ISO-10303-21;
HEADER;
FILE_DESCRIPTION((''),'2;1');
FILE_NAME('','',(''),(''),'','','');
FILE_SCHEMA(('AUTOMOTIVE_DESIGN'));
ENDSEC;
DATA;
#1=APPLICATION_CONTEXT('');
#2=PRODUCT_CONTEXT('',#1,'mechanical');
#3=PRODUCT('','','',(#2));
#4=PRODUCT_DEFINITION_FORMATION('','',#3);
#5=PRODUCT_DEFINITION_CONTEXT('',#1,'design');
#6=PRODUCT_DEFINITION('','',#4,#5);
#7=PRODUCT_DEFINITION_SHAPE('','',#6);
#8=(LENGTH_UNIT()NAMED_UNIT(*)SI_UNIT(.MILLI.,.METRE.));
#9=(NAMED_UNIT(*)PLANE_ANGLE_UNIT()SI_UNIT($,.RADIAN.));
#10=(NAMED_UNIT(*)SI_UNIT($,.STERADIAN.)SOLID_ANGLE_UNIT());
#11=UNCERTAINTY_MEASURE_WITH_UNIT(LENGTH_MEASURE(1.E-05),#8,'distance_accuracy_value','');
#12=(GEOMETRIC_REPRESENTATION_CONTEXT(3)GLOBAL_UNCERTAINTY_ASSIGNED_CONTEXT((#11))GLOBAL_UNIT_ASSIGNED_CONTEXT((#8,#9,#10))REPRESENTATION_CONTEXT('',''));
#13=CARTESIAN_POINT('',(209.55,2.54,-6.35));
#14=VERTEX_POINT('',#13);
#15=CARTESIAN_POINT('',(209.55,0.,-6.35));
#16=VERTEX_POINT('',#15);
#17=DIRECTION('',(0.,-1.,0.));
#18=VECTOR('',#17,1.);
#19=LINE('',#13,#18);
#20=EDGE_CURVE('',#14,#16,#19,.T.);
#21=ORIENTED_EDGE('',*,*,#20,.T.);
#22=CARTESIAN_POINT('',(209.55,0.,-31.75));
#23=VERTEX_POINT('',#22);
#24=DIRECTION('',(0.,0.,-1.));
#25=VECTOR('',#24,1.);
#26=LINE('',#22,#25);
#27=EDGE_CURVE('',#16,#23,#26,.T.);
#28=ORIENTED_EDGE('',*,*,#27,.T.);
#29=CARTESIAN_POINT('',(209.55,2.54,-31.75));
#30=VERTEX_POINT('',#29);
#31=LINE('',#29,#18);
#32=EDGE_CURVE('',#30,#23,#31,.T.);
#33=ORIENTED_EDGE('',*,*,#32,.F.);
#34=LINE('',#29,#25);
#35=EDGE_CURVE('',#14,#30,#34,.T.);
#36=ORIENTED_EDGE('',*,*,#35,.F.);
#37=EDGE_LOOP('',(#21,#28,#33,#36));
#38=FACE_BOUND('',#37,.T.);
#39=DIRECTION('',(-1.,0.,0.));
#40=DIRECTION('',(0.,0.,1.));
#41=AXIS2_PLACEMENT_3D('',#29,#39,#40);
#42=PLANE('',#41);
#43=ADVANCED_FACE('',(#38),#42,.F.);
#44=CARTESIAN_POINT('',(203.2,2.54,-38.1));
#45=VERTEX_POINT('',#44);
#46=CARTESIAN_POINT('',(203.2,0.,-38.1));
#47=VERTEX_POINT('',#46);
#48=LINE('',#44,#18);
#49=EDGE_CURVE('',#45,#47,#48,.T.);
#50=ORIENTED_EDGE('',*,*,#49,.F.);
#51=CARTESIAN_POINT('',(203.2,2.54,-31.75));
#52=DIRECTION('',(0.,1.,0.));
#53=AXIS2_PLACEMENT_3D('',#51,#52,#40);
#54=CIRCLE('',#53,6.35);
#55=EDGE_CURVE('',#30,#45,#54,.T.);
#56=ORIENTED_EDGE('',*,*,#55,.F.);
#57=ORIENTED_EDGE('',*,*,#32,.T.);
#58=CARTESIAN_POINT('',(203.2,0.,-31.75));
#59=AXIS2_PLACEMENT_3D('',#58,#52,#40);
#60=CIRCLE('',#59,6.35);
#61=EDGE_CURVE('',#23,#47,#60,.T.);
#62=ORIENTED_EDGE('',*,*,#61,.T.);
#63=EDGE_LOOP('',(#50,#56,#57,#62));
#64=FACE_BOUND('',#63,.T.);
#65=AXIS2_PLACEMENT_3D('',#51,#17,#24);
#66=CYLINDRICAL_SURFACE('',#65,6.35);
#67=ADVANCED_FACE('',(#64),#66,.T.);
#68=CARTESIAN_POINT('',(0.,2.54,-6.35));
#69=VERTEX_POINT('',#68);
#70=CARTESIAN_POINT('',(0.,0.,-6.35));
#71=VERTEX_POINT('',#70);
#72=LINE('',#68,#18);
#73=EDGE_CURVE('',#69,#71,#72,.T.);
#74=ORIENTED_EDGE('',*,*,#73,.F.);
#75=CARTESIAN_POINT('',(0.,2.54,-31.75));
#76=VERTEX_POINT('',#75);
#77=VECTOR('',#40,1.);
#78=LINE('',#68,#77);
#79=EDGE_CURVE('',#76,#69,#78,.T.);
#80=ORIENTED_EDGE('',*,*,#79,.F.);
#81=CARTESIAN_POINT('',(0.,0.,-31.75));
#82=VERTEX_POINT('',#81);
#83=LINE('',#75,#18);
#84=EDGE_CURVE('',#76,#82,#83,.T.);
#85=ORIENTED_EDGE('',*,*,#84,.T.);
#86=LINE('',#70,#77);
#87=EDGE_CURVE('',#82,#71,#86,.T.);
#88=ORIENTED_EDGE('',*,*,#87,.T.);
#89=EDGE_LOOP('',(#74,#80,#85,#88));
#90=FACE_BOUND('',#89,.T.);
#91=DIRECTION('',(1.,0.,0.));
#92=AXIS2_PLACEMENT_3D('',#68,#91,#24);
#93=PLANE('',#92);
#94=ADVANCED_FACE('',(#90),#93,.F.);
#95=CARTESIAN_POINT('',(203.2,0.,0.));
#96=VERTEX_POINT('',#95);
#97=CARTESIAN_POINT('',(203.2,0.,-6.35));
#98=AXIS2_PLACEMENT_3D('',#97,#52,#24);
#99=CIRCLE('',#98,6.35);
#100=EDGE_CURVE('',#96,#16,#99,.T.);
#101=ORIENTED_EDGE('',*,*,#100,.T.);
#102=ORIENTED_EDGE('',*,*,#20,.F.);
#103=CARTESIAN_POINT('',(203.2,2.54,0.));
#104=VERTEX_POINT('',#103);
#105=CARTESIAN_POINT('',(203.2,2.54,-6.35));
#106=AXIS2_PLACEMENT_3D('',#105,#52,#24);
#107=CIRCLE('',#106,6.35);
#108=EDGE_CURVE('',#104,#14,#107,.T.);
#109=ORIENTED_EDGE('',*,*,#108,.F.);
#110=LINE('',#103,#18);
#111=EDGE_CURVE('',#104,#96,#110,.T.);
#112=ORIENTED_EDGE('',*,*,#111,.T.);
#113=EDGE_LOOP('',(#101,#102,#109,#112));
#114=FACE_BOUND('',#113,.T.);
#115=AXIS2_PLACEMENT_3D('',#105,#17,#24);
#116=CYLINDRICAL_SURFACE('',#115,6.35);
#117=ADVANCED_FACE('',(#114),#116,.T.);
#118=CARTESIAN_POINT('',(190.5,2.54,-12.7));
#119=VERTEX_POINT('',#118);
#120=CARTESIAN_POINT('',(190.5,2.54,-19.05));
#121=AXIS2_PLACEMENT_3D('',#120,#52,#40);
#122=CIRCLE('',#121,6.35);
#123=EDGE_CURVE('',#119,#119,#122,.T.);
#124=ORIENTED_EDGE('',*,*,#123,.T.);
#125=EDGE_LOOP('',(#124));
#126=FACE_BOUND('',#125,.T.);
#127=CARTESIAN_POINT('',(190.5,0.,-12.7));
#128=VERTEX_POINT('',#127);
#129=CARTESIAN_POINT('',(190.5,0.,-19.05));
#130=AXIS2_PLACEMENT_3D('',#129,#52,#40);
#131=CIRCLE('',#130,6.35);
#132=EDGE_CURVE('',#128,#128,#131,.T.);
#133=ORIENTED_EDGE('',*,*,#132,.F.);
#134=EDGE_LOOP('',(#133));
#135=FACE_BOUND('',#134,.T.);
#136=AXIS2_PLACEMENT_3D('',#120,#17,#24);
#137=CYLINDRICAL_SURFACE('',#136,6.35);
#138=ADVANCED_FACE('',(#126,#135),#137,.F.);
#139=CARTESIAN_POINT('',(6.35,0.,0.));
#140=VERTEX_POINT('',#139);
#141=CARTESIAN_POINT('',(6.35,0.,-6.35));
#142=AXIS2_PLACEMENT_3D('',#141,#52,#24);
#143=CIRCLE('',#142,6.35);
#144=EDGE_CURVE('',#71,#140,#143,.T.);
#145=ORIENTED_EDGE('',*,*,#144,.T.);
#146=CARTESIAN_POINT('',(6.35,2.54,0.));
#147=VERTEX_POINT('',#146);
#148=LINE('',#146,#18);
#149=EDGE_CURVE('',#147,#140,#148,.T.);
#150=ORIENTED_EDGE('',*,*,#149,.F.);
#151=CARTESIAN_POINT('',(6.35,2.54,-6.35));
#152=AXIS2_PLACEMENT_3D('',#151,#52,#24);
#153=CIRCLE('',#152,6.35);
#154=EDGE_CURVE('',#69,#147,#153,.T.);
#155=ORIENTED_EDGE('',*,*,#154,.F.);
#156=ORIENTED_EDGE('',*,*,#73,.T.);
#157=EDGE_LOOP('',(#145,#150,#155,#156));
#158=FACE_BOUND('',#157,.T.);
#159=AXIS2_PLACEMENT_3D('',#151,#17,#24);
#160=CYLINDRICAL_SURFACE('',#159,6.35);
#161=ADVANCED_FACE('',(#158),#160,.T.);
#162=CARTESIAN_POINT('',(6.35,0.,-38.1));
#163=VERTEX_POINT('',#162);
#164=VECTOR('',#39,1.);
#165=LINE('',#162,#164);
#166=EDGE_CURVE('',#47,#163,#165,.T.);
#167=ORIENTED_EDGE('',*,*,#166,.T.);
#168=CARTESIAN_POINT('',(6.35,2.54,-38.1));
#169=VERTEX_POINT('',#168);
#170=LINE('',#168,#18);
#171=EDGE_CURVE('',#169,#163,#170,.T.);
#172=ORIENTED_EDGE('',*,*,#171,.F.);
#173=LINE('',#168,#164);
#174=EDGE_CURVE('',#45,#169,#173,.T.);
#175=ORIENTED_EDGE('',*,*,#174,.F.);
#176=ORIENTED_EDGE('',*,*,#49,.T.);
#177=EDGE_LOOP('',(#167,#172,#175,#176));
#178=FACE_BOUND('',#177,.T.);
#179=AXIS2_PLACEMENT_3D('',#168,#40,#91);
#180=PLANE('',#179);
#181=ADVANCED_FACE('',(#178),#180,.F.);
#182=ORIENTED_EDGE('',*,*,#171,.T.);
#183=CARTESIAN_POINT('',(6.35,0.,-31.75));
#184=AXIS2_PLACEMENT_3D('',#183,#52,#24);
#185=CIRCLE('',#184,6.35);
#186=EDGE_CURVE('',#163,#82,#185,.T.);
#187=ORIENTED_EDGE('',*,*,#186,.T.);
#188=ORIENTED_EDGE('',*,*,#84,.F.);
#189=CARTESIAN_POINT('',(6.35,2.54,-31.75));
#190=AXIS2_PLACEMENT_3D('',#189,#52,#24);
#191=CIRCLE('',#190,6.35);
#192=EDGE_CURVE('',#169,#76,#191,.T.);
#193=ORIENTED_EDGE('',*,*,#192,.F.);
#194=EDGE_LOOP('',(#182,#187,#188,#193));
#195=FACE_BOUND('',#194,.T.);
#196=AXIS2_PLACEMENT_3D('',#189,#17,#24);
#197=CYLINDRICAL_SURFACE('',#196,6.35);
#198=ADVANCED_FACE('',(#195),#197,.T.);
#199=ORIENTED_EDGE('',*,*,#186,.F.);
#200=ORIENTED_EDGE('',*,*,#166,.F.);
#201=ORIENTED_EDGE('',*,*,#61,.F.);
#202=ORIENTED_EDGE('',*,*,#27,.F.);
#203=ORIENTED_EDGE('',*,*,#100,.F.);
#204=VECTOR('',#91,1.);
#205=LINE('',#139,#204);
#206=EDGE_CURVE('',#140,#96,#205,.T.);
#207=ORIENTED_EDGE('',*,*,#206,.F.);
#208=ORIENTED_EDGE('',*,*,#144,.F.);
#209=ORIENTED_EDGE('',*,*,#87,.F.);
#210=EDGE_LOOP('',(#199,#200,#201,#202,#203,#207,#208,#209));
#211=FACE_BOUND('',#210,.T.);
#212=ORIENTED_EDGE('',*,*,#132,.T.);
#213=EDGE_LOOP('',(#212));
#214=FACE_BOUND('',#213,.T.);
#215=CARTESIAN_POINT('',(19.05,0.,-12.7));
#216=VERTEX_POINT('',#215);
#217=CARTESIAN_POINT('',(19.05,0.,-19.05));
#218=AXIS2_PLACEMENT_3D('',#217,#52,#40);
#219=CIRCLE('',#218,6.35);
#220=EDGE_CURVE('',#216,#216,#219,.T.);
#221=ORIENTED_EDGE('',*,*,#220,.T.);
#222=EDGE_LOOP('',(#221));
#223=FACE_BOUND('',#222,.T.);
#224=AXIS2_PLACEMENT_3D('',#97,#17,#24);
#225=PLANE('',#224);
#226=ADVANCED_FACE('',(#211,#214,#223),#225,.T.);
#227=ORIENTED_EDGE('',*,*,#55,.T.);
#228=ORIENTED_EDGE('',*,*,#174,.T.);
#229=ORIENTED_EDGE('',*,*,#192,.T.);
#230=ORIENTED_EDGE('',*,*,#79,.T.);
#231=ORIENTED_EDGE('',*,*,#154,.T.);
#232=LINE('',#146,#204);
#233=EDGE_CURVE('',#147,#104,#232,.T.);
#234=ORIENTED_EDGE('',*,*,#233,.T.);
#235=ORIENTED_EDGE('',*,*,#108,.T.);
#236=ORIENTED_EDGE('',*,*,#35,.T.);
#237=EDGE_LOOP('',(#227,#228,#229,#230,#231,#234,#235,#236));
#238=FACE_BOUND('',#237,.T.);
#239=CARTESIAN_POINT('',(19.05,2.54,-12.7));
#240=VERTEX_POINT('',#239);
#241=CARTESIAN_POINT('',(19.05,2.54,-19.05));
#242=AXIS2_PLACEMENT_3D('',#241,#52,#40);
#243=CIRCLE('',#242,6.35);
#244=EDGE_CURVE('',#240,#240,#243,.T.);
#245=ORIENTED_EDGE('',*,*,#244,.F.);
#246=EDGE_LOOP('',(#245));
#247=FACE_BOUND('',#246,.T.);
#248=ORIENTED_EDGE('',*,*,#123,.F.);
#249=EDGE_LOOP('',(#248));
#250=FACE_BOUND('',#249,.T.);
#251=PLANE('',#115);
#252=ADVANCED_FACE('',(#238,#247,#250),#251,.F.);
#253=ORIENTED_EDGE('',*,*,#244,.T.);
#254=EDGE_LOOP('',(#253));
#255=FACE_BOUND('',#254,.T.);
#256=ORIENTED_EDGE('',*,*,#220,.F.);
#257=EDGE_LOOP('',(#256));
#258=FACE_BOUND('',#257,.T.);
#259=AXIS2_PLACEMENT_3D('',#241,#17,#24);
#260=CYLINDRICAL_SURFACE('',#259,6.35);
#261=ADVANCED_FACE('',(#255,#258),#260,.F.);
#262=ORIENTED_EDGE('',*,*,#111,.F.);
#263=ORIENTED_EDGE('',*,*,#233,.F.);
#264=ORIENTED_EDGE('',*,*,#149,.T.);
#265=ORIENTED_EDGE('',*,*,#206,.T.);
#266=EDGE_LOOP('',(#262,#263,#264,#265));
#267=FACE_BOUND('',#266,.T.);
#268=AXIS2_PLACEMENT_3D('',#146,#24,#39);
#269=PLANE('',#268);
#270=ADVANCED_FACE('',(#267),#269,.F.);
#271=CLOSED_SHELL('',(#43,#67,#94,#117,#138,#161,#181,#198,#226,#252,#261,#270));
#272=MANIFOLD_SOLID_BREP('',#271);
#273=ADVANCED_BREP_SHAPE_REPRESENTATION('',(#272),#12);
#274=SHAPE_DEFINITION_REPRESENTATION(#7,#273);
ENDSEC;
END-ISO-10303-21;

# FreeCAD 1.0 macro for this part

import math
import FreeCAD as App
import Part
import Sketcher
Q = App.Units.Quantity

doc = App.newDocument("Part")
params = doc.addObject("Spreadsheet::Sheet", "Params")
for row, (alias, value) in enumerate([
    ("sketch1_diameter", "0.5 in"),
    ("sketch1_height", "1 in"),
    ("pad1_length", "0.1 in"),
], start=1):
    params.set(f"A{row}", alias)
    params.set(f"B{row}", "=" + value)
    params.setAlias(f"B{row}", alias)

body = doc.addObject("PartDesign::Body", "Body")

sketch1 = body.newObject("Sketcher::SketchObject", "Sketch")
sketch1.AttachmentSupport = (doc.getObject("XZ_Plane"), [""])
sketch1.MapMode = "FlatFace"
sketch1.addGeometry([
    Part.LineSegment(App.Vector(6, 0, 0), App.Vector(203, 0, 0)),
    Part.ArcOfCircle(Part.Circle(App.Vector(203, -6, 0), App.Vector(0, 0, 1), 6), math.radians(0), math.radians(90)),
    Part.LineSegment(App.Vector(210, -6, 0), App.Vector(210, -32, 0)),
    Part.ArcOfCircle(Part.Circle(App.Vector(203, -32, 0), App.Vector(0, 0, 1), 6), math.radians(-90), math.radians(0)),
    Part.LineSegment(App.Vector(203, -38, 0), App.Vector(6, -38, 0)),
    Part.ArcOfCircle(Part.Circle(App.Vector(6, -32, 0), App.Vector(0, 0, 1), 6), math.radians(180), math.radians(270)),
    Part.LineSegment(App.Vector(0, -32, 0), App.Vector(0, -6, 0)),
    Part.ArcOfCircle(Part.Circle(App.Vector(6, -6, 0), App.Vector(0, 0, 1), 6), math.radians(90), math.radians(180)),
    Part.Circle(App.Vector(19, -19, 0), App.Vector(0, 0, 1), 6),
    Part.Circle(App.Vector(190, -19, 0), App.Vector(0, 0, 1), 6),
], False)
sketch1.addConstraint([
    Sketcher.Constraint("Tangent", 0, 2, 1, 2),
    Sketcher.Constraint("Tangent", 1, 1, 2, 1),
    Sketcher.Constraint("Tangent", 2, 2, 3, 2),
    Sketcher.Constraint("Tangent", 3, 1, 4, 1),
    Sketcher.Constraint("Tangent", 4, 2, 5, 2),
    Sketcher.Constraint("Tangent", 5, 1, 6, 1),
    Sketcher.Constraint("Tangent", 6, 2, 7, 2),
    Sketcher.Constraint("Tangent", 7, 1, 0, 1),
    Sketcher.Constraint("Horizontal", 0),
    Sketcher.Constraint("Vertical", 2),
    Sketcher.Constraint("Horizontal", 4),
    Sketcher.Constraint("Vertical", 6),
    Sketcher.Constraint("Equal", 1, 3),
    Sketcher.Constraint("Equal", 3, 5),
    Sketcher.Constraint("Equal", 5, 7),
    Sketcher.Constraint("Equal", 7, 8),
    Sketcher.Constraint("Equal", 8, 9),
    Sketcher.Constraint("PointOnObject", 0, 2, -1),
    Sketcher.Constraint("PointOnObject", 5, 1, -2),
    Sketcher.Constraint("Horizontal", 8, 3, 9, 3),
    Sketcher.Constraint("Diameter", 8, Q("0.5 in")),
    Sketcher.Constraint("DistanceY", 2, 2, 2, 1, Q("1 in")),
    Sketcher.Constraint("DistanceX", -1, 1, 1, 3, Q("8 in")),
    Sketcher.Constraint("DistanceX", -1, 1, 9, 3, Q("7.5 in")),
    Sketcher.Constraint("DistanceX", 5, 3, 8, 3, Q("0.5 in")),
    Sketcher.Constraint("DistanceY", 5, 3, 8, 3, Q("0.5 in")),
])
sketch1.setExpression("Constraints[20]", "Params.sketch1_diameter")
sketch1.setExpression("Constraints[21]", "Params.sketch1_height")
pad1 = body.newObject("PartDesign::Pad", "Pad")
pad1.Profile = sketch1
pad1.setExpression("Length", "Params.pad1_length")
pad1.Reversed = True

doc.recompute()
